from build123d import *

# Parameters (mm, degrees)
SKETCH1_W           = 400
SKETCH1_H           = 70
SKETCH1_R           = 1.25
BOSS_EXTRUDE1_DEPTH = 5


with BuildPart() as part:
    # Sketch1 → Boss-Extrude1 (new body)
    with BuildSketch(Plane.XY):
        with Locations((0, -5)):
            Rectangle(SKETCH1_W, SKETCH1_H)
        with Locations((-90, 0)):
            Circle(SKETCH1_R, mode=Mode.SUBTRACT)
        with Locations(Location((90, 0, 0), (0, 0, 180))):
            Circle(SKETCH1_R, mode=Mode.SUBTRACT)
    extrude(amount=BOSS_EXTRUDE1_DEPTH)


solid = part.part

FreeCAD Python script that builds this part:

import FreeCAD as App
import Part
import Sketcher
from FreeCAD import Vector

doc = App.newDocument("Part")
body = doc.addObject("PartDesign::Body", "Body")

# Sketch on XY plane
sketch1 = body.newObject("Sketcher::SketchObject", "Sketch")
sketch1.AttachmentSupport = (doc.getObject("XY_Plane"), [""])
sketch1.MapMode = "FlatFace"
sketch1.addGeometry([
    Part.LineSegment(Vector(-200, 30, 0), Vector(-200, -40, 0)),  # 0
    Part.LineSegment(Vector(-200, -40, 0), Vector(200, -40, 0)),  # 1
    Part.LineSegment(Vector(200, -40, 0), Vector(200, 30, 0)),  # 2
    Part.LineSegment(Vector(200, 30, 0), Vector(-200, 30, 0)),  # 3
    Part.Circle(Vector(-90, 0, 0), Vector(0, 0, 1), 1.2),  # 4
    Part.Circle(Vector(90, 0, 0), Vector(0, 0, 1), 1.2),  # 5
], False)
sketch1.addConstraint([
    Sketcher.Constraint("Coincident", 0, 2, 1, 1),
    Sketcher.Constraint("Coincident", 1, 2, 2, 1),
    Sketcher.Constraint("Coincident", 2, 2, 3, 1),
    Sketcher.Constraint("Coincident", 3, 2, 0, 1),
    Sketcher.Constraint("Vertical", 0),
    Sketcher.Constraint("Horizontal", 1),
    Sketcher.Constraint("Vertical", 2),
    Sketcher.Constraint("Horizontal", 3),
    Sketcher.Constraint("Equal", 4, 5),
    Sketcher.Constraint("Symmetric", 4, 3, 5, 3, -1, 1),
    Sketcher.Constraint("PointOnObject", 4, 3, -1),
    Sketcher.Constraint("Diameter", 4, 2.5),
    Sketcher.Constraint("DistanceX", 1, 1, 1, 2, 400.0),
    Sketcher.Constraint("DistanceY", 0, 2, 0, 1, 70.0),
    Sketcher.Constraint("DistanceX", 4, 3, -1, 1, 90.0),
    Sketcher.Constraint("DistanceX", 0, 2, -1, 1, 200.0),
    Sketcher.Constraint("DistanceY", 0, 2, -1, 1, 40.0),
])
pad1 = body.newObject("PartDesign::Pad", "Pad")
pad1.Profile = sketch1
pad1.Length = 5

doc.recompute()
